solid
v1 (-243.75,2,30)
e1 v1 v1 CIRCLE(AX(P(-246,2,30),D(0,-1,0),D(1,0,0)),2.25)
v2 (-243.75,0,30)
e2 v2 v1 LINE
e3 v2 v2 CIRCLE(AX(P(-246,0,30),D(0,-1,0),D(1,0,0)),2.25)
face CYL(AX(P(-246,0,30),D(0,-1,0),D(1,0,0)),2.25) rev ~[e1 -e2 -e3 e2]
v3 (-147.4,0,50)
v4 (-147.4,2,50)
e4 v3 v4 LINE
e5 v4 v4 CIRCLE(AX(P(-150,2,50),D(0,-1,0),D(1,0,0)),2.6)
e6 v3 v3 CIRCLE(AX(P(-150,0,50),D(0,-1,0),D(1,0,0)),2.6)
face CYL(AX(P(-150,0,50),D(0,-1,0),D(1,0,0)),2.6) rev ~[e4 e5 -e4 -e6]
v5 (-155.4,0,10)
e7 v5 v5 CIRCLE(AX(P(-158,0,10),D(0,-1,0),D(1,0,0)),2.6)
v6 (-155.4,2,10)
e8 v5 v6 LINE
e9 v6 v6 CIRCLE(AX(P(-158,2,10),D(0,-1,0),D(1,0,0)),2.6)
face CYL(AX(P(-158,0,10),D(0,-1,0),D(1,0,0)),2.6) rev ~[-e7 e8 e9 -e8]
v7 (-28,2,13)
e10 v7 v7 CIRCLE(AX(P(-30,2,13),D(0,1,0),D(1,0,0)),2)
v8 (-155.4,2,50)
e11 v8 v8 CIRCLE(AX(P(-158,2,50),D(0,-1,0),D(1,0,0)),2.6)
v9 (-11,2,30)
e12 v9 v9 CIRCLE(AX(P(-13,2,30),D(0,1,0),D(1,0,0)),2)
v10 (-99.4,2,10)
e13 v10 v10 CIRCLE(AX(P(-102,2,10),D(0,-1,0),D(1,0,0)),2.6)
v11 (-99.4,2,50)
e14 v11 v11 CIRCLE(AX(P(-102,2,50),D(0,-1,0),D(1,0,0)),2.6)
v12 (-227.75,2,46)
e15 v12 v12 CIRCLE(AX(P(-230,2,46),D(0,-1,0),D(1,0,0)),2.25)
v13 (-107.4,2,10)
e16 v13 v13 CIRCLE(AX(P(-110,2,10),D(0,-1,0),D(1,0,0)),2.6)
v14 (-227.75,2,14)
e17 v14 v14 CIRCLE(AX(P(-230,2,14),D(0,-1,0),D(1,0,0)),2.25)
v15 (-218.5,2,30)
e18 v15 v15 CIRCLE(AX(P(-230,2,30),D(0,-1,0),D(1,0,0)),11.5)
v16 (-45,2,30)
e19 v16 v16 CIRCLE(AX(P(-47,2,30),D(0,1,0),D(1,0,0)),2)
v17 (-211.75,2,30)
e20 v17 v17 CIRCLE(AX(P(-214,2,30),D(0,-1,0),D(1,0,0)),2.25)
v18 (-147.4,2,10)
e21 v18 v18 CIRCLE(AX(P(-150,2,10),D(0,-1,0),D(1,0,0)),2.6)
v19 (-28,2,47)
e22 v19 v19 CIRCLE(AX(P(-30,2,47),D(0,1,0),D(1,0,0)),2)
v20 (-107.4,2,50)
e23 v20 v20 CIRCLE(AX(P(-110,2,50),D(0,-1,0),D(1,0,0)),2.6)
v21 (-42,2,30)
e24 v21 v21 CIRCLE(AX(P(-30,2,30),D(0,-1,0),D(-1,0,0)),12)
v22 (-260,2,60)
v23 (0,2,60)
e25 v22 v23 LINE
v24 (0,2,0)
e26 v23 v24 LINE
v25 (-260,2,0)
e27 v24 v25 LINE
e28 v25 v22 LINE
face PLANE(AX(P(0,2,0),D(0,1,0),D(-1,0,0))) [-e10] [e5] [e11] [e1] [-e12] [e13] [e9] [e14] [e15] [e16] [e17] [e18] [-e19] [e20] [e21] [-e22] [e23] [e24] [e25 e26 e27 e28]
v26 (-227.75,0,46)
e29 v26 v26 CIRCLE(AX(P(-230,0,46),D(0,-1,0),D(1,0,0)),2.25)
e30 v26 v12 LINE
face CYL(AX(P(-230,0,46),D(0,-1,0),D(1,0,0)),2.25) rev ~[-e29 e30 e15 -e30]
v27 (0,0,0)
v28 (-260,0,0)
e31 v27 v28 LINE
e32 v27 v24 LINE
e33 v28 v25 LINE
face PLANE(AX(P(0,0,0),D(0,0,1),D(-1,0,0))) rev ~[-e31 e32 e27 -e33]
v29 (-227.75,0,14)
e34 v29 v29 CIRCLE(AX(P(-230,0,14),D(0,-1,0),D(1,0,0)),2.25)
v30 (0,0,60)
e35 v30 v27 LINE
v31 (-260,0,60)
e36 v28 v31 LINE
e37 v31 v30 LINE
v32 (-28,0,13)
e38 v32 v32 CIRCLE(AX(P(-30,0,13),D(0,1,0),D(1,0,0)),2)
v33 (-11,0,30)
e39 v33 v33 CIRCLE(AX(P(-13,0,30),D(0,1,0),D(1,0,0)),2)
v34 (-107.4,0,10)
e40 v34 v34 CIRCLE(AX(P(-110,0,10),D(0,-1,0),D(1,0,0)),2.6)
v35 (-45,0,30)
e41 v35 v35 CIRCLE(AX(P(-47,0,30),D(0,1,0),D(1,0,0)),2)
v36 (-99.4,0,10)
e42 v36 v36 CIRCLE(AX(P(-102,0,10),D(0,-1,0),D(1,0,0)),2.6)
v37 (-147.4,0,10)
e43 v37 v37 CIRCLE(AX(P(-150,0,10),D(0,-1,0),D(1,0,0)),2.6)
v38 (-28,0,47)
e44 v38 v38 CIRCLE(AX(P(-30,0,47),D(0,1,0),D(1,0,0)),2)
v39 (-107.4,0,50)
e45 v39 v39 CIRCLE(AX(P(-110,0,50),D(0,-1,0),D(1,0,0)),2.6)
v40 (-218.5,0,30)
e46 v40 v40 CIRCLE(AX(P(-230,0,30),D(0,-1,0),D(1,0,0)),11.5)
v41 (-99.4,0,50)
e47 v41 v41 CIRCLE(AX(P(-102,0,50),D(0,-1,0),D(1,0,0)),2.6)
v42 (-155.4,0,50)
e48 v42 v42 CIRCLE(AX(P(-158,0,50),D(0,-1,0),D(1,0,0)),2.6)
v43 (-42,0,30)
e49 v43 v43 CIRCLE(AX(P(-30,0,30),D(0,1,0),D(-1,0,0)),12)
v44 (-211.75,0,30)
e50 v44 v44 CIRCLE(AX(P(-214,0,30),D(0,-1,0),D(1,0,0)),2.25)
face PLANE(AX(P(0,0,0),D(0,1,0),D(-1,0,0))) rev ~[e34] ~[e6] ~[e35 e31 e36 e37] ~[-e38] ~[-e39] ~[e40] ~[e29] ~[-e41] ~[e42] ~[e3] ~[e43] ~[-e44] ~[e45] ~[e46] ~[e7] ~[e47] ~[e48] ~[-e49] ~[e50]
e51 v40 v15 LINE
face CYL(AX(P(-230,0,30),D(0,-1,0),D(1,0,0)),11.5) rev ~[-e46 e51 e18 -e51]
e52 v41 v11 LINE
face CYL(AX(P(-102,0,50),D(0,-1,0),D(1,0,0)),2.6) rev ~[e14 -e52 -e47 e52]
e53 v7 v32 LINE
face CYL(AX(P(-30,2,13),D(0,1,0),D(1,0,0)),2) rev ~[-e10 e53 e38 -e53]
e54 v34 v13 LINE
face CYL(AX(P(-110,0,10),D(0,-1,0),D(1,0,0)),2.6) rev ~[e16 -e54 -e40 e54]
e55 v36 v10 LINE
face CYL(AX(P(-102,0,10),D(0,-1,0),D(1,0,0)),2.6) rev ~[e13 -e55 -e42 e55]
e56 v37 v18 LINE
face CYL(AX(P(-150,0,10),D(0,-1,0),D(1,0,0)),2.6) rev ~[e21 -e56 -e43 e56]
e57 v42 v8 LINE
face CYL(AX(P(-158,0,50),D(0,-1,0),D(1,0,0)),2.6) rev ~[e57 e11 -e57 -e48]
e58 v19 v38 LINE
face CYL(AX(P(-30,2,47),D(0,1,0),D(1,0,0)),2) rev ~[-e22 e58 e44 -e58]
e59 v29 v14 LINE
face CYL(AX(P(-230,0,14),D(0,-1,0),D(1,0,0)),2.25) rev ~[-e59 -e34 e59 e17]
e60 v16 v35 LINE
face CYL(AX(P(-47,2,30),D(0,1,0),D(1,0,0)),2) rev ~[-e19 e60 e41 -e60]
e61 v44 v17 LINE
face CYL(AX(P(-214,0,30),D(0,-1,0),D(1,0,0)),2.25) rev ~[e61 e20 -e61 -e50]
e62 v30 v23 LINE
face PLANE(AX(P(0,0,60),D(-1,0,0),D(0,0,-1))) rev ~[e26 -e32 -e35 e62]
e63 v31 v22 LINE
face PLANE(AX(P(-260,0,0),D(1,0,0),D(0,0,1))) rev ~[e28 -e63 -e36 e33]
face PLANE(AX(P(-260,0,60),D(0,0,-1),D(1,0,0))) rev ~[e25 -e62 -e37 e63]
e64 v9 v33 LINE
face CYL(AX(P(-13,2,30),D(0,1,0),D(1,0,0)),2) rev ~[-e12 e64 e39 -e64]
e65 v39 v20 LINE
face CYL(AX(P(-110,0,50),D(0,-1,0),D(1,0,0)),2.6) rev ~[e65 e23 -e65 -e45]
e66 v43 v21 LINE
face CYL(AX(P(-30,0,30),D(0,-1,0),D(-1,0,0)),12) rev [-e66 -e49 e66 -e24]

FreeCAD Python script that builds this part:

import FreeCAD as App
import Part
import Sketcher


def add_polygon(sketch, points):
    """Adds a closed chain of lines whose ends are joined by coincident constraints."""
    first, n = sketch.GeometryCount, len(points)
    for a, b in zip(points, points[1:] + points[:1]):
        sketch.addGeometry(Part.LineSegment(App.Vector(*a, 0), App.Vector(*b, 0)), False)
    for i in range(n):
        sketch.addConstraint(Sketcher.Constraint("Coincident", first + i, 2, first + (i + 1) % n, 1))

doc = App.newDocument("Part")
body = doc.addObject("PartDesign::Body", "Body")

# Sketch on XZ plane
sketch1 = body.newObject("Sketcher::SketchObject", "Sketch")
sketch1.AttachmentSupport = (doc.getObject("XZ_Plane"), [""])
sketch1.MapMode = "FlatFace"
add_polygon(sketch1, [(0, 60), (0, 0), (-260, 0), (-260, 60)])  # lines 0-3
sketch1.addConstraint(Sketcher.Constraint("Vertical", 0))
sketch1.addConstraint(Sketcher.Constraint("Horizontal", 1))
sketch1.addConstraint(Sketcher.Constraint("Vertical", 2))
sketch1.addConstraint(Sketcher.Constraint("Horizontal", 3))
sketch1.addConstraint(Sketcher.Constraint("Coincident", 0, 2, -1, 1))
sketch1.addConstraint(Sketcher.Constraint("DistanceX", 1, 2, 1, 1, 260.0))
sketch1.addConstraint(Sketcher.Constraint("DistanceY", 0, 2, 0, 1, 60.0))
pad1 = body.newObject("PartDesign::Pad", "Pad")
pad1.Profile = sketch1
pad1.Length = 2
pad1.Reversed = True

# Sketch on XZ plane
sketch2 = body.newObject("Sketcher::SketchObject", "Sketch001")
sketch2.AttachmentSupport = (doc.getObject("XZ_Plane"), [""])
sketch2.MapMode = "FlatFace"
sketch2.addGeometry(Part.Circle(App.Vector(-30, 30, 0), App.Vector(0, 0, 1), 12), False)
sketch2.addConstraint(Sketcher.Constraint("Diameter", 0, 24.0))
sketch2.addConstraint(Sketcher.Constraint("DistanceX", 0, 3, -1, 1, 30.0))
sketch2.addConstraint(Sketcher.Constraint("DistanceY", -1, 1, 0, 3, 30.0))
pocket1 = body.newObject("PartDesign::Pocket", "Pocket")
pocket1.Profile = sketch2
pocket1.Length = 10

# Sketch on XZ plane
sketch3 = body.newObject("Sketcher::SketchObject", "Sketch002")
sketch3.AttachmentSupport = (doc.getObject("XZ_Plane"), [""])
sketch3.MapMode = "FlatFace"
sketch3.AttachmentOffset = App.Placement(App.Vector(0, 0, -2), App.Rotation())
sketch3.addGeometry(Part.Circle(App.Vector(-30, 13, 0), App.Vector(0, 0, 1), 2), False)
sketch3.addGeometry(Part.Circle(App.Vector(-13, 30, 0), App.Vector(0, 0, 1), 2), False)
sketch3.addGeometry(Part.Circle(App.Vector(-47, 30, 0), App.Vector(0, 0, 1), 2), False)
sketch3.addGeometry(Part.Circle(App.Vector(-30, 47, 0), App.Vector(0, 0, 1), 2), False)
sketch3.addConstraint(Sketcher.Constraint("Equal", 0, 1))
sketch3.addConstraint(Sketcher.Constraint("Equal", 1, 2))
sketch3.addConstraint(Sketcher.Constraint("Equal", 2, 3))
sketch3.addConstraint(Sketcher.Constraint("Horizontal", 1, 3, 2, 3))
sketch3.addConstraint(Sketcher.Constraint("Vertical", 0, 3, 3, 3))
sketch3.addConstraint(Sketcher.Constraint("Diameter", 0, 4.0))
sketch3.addConstraint(Sketcher.Constraint("DistanceX", 0, 3, -1, 1, 30.0))
sketch3.addConstraint(Sketcher.Constraint("DistanceY", -1, 1, 0, 3, 13.0))
sketch3.addConstraint(Sketcher.Constraint("DistanceX", 1, 3, -1, 1, 13.0))
sketch3.addConstraint(Sketcher.Constraint("DistanceY", -1, 1, 1, 3, 30.0))
sketch3.addConstraint(Sketcher.Constraint("DistanceX", 2, 3, -1, 1, 47.0))
sketch3.addConstraint(Sketcher.Constraint("DistanceY", -1, 1, 3, 3, 47.0))
pocket2 = body.newObject("PartDesign::Pocket", "Pocket001")
pocket2.Profile = sketch3
pocket2.Length = 10
pocket2.Reversed = True

# Sketch on XZ plane
sketch4 = body.newObject("Sketcher::SketchObject", "Sketch003")
sketch4.AttachmentSupport = (doc.getObject("XZ_Plane"), [""])
sketch4.MapMode = "FlatFace"
sketch4.addGeometry(Part.Circle(App.Vector(-230, 30, 0), App.Vector(0, 0, 1), 12), False)
sketch4.addConstraint(Sketcher.Constraint("Diameter", 0, 23.0))
sketch4.addConstraint(Sketcher.Constraint("DistanceY", -1, 1, 0, 3, 30.0))
sketch4.addConstraint(Sketcher.Constraint("DistanceX", 0, 3, -1, 1, 230.0))
pocket3 = body.newObject("PartDesign::Pocket", "Pocket002")
pocket3.Profile = sketch4
pocket3.Length = 10

# Sketch on XZ plane
sketch5 = body.newObject("Sketcher::SketchObject", "Sketch004")
sketch5.AttachmentSupport = (doc.getObject("XZ_Plane"), [""])
sketch5.MapMode = "FlatFace"
sketch5.addGeometry(Part.Circle(App.Vector(-246, 30, 0), App.Vector(0, 0, 1), 2.2), False)
sketch5.addGeometry(Part.Circle(App.Vector(-230, 46, 0), App.Vector(0, 0, 1), 2.2), False)
sketch5.addGeometry(Part.Circle(App.Vector(-214, 30, 0), App.Vector(0, 0, 1), 2.2), False)
sketch5.addGeometry(Part.Circle(App.Vector(-230, 14, 0), App.Vector(0, 0, 1), 2.2), False)
sketch5.addConstraint(Sketcher.Constraint("Equal", 0, 1))
sketch5.addConstraint(Sketcher.Constraint("Equal", 1, 2))
sketch5.addConstraint(Sketcher.Constraint("Equal", 2, 3))
sketch5.addConstraint(Sketcher.Constraint("Horizontal", 0, 3, 2, 3))
sketch5.addConstraint(Sketcher.Constraint("Vertical", 1, 3, 3, 3))
sketch5.addConstraint(Sketcher.Constraint("Diameter", 0, 4.5))
sketch5.addConstraint(Sketcher.Constraint("DistanceX", 0, 3, -1, 1, 246.0))
sketch5.addConstraint(Sketcher.Constraint("DistanceY", -1, 1, 0, 3, 30.0))
sketch5.addConstraint(Sketcher.Constraint("DistanceX", 1, 3, -1, 1, 230.0))
sketch5.addConstraint(Sketcher.Constraint("DistanceY", -1, 1, 1, 3, 46.0))
sketch5.addConstraint(Sketcher.Constraint("DistanceX", 2, 3, -1, 1, 214.0))
sketch5.addConstraint(Sketcher.Constraint("DistanceY", -1, 1, 3, 3, 14.0))
pocket4 = body.newObject("PartDesign::Pocket", "Pocket003")
pocket4.Profile = sketch5
pocket4.Length = 10

# Sketch on XZ plane
sketch6 = body.newObject("Sketcher::SketchObject", "Sketch005")
sketch6.AttachmentSupport = (doc.getObject("XZ_Plane"), [""])
sketch6.MapMode = "FlatFace"
sketch6.addGeometry(Part.Circle(App.Vector(-158, 10, 0), App.Vector(0, 0, 1), 2.6), False)
sketch6.addGeometry(Part.Circle(App.Vector(-150, 10, 0), App.Vector(0, 0, 1), 2.6), False)
sketch6.addGeometry(Part.Circle(App.Vector(-110, 10, 0), App.Vector(0, 0, 1), 2.6), False)
sketch6.addGeometry(Part.Circle(App.Vector(-102, 10, 0), App.Vector(0, 0, 1), 2.6), False)
sketch6.addGeometry(Part.Circle(App.Vector(-158, 50, 0), App.Vector(0, 0, 1), 2.6), False)
sketch6.addGeometry(Part.Circle(App.Vector(-150, 50, 0), App.Vector(0, 0, 1), 2.6), False)
sketch6.addGeometry(Part.Circle(App.Vector(-110, 50, 0), App.Vector(0, 0, 1), 2.6), False)
sketch6.addGeometry(Part.Circle(App.Vector(-102, 50, 0), App.Vector(0, 0, 1), 2.6), False)
sketch6.addConstraint(Sketcher.Constraint("Equal", 0, 1))
sketch6.addConstraint(Sketcher.Constraint("Equal", 1, 2))
sketch6.addConstraint(Sketcher.Constraint("Equal", 2, 3))
sketch6.addConstraint(Sketcher.Constraint("Equal", 3, 4))
sketch6.addConstraint(Sketcher.Constraint("Equal", 4, 5))
sketch6.addConstraint(Sketcher.Constraint("Equal", 5, 6))
sketch6.addConstraint(Sketcher.Constraint("Equal", 6, 7))
sketch6.addConstraint(Sketcher.Constraint("Horizontal", 0, 3, 1, 3))
sketch6.addConstraint(Sketcher.Constraint("Horizontal", 1, 3, 2, 3))
sketch6.addConstraint(Sketcher.Constraint("Horizontal", 2, 3, 3, 3))
sketch6.addConstraint(Sketcher.Constraint("Horizontal", 4, 3, 5, 3))
sketch6.addConstraint(Sketcher.Constraint("Horizontal", 5, 3, 6, 3))
sketch6.addConstraint(Sketcher.Constraint("Horizontal", 6, 3, 7, 3))
sketch6.addConstraint(Sketcher.Constraint("Vertical", 0, 3, 4, 3))
sketch6.addConstraint(Sketcher.Constraint("Vertical", 1, 3, 5, 3))
sketch6.addConstraint(Sketcher.Constraint("Vertical", 2, 3, 6, 3))
sketch6.addConstraint(Sketcher.Constraint("Vertical", 3, 3, 7, 3))
sketch6.addConstraint(Sketcher.Constraint("Diameter", 0, 5.2))
sketch6.addConstraint(Sketcher.Constraint("DistanceY", -1, 1, 0, 3, 10.0))
sketch6.addConstraint(Sketcher.Constraint("DistanceX", 3, 3, -1, 1, 102.0))
sketch6.addConstraint(Sketcher.Constraint("DistanceX", 0, 3, 1, 3, 8.0))
sketch6.addConstraint(Sketcher.Constraint("DistanceX", 1, 3, 2, 3, 40.0))
sketch6.addConstraint(Sketcher.Constraint("DistanceX", 2, 3, 3, 3, 8.0))
sketch6.addConstraint(Sketcher.Constraint("DistanceY", 0, 3, 4, 3, 40.0))
pocket5 = body.newObject("PartDesign::Pocket", "Pocket004")
pocket5.Profile = sketch6
pocket5.Length = 10

doc.recompute()
